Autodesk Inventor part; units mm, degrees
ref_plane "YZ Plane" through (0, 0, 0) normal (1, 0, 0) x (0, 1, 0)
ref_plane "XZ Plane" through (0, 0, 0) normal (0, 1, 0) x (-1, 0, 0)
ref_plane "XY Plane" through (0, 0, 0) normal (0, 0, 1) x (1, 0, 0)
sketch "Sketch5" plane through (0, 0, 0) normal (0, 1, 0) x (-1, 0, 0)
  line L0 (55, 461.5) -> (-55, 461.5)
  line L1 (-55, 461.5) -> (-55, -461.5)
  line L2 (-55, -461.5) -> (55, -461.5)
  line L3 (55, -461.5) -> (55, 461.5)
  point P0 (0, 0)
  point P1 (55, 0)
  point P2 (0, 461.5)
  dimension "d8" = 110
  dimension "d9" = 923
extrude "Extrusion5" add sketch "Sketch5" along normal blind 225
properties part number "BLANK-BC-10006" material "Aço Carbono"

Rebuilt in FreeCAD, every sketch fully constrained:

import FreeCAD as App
import Part
import Sketcher

V = App.Vector


def add_polygon(sketch, points):
    """Adds a closed chain of lines whose ends are joined by coincident constraints."""
    first, n = sketch.GeometryCount, len(points)
    for a, b in zip(points, points[1:] + points[:1]):
        sketch.addGeometry(Part.LineSegment(App.Vector(*a, 0), App.Vector(*b, 0)), False)
    for i in range(n):
        sketch.addConstraint(Sketcher.Constraint("Coincident", first + i, 2, first + (i + 1) % n, 1))

doc = App.newDocument("Part")
body = doc.addObject("PartDesign::Body", "Body")

# Sketch on XZ plane
sketch1 = body.newObject("Sketcher::SketchObject", "Sketch")
sketch1.AttachmentSupport = (doc.getObject("XZ_Plane"), [""])
sketch1.MapMode = "FlatFace"
add_polygon(sketch1, [(-55, -461.5), (-55, 461.5), (55, 461.5), (55, -461.5)])  # lines 0-3
sketch1.addConstraint([
    Sketcher.Constraint("Vertical", 0),
    Sketcher.Constraint("Horizontal", 1),
    Sketcher.Constraint("Vertical", 2),
    Sketcher.Constraint("Horizontal", 3),
    Sketcher.Constraint("Symmetric", 0, 2, 2, 2, -1, 1),
    Sketcher.Constraint("DistanceX", 1, 1, 1, 2, 110.0),
    Sketcher.Constraint("DistanceY", 0, 1, 0, 2, 923.0),
])
pad1 = body.newObject("PartDesign::Pad", "Pad")
pad1.Profile = sketch1
pad1.Length = 225
pad1.Reversed = True

doc.recompute()
